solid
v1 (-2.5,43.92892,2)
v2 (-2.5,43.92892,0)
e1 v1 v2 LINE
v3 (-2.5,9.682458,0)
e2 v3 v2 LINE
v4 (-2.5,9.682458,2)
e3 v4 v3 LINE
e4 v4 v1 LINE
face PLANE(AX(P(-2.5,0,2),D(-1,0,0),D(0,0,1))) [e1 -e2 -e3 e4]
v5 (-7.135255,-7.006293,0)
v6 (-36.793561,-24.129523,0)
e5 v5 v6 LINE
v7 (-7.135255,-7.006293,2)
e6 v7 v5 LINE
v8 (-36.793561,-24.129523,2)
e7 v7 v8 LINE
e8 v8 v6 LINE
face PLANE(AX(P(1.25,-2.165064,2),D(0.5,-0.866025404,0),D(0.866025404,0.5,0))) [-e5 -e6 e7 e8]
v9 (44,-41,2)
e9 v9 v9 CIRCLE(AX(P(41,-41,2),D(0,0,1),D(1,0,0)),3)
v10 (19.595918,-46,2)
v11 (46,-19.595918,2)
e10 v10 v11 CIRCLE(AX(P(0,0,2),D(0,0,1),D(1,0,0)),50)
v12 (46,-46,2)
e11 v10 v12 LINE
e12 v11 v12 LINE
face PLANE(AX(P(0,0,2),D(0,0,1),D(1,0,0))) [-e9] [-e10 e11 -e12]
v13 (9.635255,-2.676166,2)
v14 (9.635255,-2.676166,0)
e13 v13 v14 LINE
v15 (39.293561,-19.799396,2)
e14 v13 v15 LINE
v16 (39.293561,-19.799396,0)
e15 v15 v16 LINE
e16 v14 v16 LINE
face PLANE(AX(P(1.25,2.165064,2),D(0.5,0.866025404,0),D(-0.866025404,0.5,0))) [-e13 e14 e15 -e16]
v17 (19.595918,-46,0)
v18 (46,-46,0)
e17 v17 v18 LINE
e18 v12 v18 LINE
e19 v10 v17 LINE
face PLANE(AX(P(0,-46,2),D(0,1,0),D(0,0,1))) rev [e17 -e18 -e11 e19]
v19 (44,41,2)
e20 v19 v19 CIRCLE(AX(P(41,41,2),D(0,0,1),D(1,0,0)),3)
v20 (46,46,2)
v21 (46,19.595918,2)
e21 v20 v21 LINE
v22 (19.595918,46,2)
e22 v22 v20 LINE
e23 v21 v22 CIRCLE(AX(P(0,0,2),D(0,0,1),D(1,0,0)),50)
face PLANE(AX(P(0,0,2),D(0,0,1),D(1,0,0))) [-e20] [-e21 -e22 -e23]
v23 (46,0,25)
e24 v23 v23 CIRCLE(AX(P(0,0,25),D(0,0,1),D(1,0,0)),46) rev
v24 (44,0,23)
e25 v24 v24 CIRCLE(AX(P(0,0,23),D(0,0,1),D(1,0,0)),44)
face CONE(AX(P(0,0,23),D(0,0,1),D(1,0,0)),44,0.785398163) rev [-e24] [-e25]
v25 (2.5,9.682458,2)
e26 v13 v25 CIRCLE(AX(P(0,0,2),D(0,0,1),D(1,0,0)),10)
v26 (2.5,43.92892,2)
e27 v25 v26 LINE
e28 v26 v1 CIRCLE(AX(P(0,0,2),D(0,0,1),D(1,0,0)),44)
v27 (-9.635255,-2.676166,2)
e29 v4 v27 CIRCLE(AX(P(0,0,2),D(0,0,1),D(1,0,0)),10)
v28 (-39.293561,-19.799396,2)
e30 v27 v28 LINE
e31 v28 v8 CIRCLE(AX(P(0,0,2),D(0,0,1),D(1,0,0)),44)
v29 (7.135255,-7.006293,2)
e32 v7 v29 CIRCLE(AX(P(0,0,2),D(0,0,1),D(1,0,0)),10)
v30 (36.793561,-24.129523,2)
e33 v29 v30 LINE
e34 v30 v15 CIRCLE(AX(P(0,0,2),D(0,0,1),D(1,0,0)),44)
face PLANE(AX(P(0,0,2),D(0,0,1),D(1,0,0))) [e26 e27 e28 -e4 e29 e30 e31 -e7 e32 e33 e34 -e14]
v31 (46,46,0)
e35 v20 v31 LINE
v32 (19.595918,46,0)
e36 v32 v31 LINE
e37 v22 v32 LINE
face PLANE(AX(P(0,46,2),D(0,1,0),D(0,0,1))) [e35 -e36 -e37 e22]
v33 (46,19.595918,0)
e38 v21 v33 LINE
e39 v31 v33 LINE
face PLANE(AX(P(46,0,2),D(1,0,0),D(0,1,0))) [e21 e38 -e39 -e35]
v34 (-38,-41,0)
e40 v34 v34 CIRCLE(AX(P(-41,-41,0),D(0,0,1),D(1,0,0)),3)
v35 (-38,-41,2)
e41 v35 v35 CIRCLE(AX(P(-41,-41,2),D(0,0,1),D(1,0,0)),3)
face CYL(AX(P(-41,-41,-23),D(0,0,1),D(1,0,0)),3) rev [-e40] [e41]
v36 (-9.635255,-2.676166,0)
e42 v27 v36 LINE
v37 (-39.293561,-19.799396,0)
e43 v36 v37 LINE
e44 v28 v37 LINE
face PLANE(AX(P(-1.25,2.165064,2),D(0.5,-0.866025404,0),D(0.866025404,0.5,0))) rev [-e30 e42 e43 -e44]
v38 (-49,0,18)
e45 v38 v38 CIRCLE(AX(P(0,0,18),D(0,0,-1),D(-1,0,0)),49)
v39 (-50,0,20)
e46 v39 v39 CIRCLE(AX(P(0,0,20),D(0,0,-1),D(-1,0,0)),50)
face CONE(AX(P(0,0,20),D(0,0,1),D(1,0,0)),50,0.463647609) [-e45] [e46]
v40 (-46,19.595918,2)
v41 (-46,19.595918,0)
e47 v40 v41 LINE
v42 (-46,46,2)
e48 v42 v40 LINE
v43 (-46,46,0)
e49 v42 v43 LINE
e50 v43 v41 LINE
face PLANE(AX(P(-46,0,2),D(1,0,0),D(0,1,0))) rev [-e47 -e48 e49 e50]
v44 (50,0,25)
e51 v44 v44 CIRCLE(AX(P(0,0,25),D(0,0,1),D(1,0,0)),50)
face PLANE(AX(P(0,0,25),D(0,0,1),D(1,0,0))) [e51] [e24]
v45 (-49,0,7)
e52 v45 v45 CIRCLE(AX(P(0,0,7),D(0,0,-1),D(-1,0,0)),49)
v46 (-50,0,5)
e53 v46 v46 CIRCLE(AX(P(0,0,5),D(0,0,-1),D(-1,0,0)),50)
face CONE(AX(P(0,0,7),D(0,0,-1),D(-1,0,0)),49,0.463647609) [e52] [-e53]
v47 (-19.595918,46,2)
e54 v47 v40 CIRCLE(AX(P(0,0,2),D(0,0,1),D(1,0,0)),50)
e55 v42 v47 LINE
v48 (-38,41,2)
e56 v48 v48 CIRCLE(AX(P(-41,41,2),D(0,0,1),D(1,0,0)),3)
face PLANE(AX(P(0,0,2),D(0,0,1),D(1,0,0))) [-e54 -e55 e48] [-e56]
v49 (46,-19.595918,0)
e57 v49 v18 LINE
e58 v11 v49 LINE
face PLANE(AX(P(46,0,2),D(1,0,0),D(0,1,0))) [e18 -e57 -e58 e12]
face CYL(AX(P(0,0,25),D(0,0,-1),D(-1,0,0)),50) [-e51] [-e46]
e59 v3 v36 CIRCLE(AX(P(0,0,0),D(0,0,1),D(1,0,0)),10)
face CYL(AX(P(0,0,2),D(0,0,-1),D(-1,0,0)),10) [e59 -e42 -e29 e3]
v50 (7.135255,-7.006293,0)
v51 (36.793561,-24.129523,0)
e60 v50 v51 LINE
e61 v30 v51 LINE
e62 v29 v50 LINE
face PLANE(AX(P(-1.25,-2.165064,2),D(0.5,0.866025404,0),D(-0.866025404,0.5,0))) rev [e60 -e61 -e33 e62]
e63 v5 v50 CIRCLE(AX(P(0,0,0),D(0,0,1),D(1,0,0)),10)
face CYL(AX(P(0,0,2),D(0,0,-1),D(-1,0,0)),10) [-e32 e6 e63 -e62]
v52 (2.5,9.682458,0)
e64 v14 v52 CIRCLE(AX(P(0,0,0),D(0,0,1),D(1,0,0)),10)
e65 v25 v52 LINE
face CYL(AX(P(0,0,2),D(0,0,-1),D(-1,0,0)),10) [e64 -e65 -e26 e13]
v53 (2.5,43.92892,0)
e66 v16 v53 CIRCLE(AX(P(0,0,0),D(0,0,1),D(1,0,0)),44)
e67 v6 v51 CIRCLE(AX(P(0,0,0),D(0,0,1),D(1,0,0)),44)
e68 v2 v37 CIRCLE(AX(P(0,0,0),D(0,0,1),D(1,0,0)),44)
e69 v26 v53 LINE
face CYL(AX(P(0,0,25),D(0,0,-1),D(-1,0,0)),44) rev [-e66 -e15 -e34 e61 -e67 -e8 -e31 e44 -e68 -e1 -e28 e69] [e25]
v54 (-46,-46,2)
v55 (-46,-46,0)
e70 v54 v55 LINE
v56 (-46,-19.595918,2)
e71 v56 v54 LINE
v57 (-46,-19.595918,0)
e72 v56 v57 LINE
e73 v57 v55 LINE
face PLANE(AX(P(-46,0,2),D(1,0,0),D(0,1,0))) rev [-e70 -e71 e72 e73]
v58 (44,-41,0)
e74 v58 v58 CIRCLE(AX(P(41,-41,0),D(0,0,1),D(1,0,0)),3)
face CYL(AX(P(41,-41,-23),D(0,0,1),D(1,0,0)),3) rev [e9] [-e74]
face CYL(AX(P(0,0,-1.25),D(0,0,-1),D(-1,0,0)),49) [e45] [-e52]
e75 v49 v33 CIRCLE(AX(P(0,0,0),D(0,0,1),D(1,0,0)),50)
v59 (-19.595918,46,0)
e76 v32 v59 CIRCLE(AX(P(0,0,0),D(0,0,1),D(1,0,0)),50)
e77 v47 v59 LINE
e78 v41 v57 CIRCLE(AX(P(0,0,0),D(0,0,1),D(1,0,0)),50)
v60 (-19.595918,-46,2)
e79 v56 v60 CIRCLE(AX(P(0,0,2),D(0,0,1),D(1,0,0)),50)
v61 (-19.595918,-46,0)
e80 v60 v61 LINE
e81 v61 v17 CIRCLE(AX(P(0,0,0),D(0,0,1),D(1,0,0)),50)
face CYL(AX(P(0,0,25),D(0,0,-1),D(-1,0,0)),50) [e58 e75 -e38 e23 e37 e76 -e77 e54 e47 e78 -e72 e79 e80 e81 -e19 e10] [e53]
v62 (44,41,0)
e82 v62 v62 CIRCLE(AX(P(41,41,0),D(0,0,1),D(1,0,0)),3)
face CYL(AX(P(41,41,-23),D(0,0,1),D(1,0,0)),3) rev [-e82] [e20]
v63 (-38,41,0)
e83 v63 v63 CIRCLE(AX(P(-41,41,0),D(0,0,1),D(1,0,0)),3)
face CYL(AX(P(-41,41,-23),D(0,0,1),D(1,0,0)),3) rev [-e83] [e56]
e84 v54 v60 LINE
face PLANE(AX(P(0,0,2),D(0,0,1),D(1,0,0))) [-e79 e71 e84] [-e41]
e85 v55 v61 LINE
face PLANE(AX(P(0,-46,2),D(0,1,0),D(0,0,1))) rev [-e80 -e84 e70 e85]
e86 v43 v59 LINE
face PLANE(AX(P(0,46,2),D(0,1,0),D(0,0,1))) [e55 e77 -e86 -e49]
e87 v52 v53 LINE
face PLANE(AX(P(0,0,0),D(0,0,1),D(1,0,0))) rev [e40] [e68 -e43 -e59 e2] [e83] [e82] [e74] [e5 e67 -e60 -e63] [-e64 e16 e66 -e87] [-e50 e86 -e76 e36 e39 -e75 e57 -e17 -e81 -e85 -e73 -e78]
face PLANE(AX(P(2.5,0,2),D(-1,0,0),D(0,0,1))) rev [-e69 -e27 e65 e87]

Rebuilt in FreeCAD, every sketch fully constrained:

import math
import FreeCAD as App
import Part
import Sketcher

V = App.Vector
Q = App.Units.Quantity


def edges_at(feature, points):
    """Names of the edges that pass closest to the given points."""
    edges = feature.Shape.Edges
    near = lambda p: min(range(len(edges)), key=lambda i: edges[i].distToShape(Part.Vertex(*p))[0])
    return sorted({f"Edge{near(p) + 1}" for p in points})

doc = App.newDocument("Part")
body = doc.addObject("PartDesign::Body", "Body")
body.AllowCompound = True

# Sketch on XY plane
sketch1 = body.newObject("Sketcher::SketchObject", "Sketch")
sketch1.AttachmentSupport = (doc.getObject("XY_Plane"), [""])
sketch1.MapMode = "FlatFace"
sketch1.addGeometry(Part.LineSegment(V(-46, 46, 0), V(-46, 19.595918, 0)), False)
sketch1.addGeometry(Part.ArcOfCircle(Part.Circle(V(0, 0, 0), V(0, 0, 1), 50), math.radians(113.073918), math.radians(156.926082)), False)
sketch1.addGeometry(Part.LineSegment(V(-19.595918, 46, 0), V(-46, 46, 0)), False)
sketch1.addGeometry(Part.ArcOfCircle(Part.Circle(V(0, 0, 0), V(0, 0, 1), 50), math.radians(-156.926082), math.radians(-113.073918)), False)
sketch1.addGeometry(Part.LineSegment(V(-46, -19.595918, 0), V(-46, -46, 0)), False)
sketch1.addGeometry(Part.LineSegment(V(-46, -46, 0), V(-19.595918, -46, 0)), False)
sketch1.addGeometry(Part.ArcOfCircle(Part.Circle(V(0, 0, 0), V(0, 0, 1), 50), math.radians(-66.926082), math.radians(-23.073918)), False)
sketch1.addGeometry(Part.LineSegment(V(19.595918, -46, 0), V(46, -46, 0)), False)
sketch1.addGeometry(Part.LineSegment(V(46, -46, 0), V(46, -19.595918, 0)), False)
sketch1.addGeometry(Part.LineSegment(V(46, 46, 0), V(19.595918, 46, 0)), False)
sketch1.addGeometry(Part.ArcOfCircle(Part.Circle(V(0, 0, 0), V(0, 0, 1), 50), math.radians(23.073918), math.radians(66.926082)), False)
sketch1.addGeometry(Part.LineSegment(V(46, 19.595918, 0), V(46, 46, 0)), False)
sketch1.addGeometry(Part.LineSegment(V(2.5, 9.682458, 0), V(2.5, 43.92892, 0)), False)
sketch1.addGeometry(Part.ArcOfCircle(Part.Circle(V(0, 0, 0), V(0, 0, 1), 44), math.radians(86.742804), math.radians(93.257196)), False)
sketch1.addGeometry(Part.LineSegment(V(-2.5, 43.92892, 0), V(-2.5, 9.682458, 0)), False)
sketch1.addGeometry(Part.ArcOfCircle(Part.Circle(V(0, 0, 0), V(0, 0, 1), 10), math.radians(104.477512), math.radians(195.522488)), False)
sketch1.addGeometry(Part.LineSegment(V(-9.635255, -2.676166, 0), V(-39.293561, -19.799396, 0)), False)
sketch1.addGeometry(Part.ArcOfCircle(Part.Circle(V(0, 0, 0), V(0, 0, 1), 44), math.radians(-153.257196), math.radians(-146.742804)), False)
sketch1.addGeometry(Part.LineSegment(V(-36.793561, -24.129523, 0), V(-7.135255, -7.006293, 0)), False)
sketch1.addGeometry(Part.ArcOfCircle(Part.Circle(V(0, 0, 0), V(0, 0, 1), 10), math.radians(-135.522488), math.radians(-44.477512)), False)
sketch1.addGeometry(Part.LineSegment(V(7.135255, -7.006293, 0), V(36.793561, -24.129523, 0)), False)
sketch1.addGeometry(Part.ArcOfCircle(Part.Circle(V(0, 0, 0), V(0, 0, 1), 44), math.radians(-33.257196), math.radians(-26.742804)), False)
sketch1.addGeometry(Part.LineSegment(V(39.293561, -19.799396, 0), V(9.635255, -2.676166, 0)), False)
sketch1.addGeometry(Part.ArcOfCircle(Part.Circle(V(0, 0, 0), V(0, 0, 1), 10), math.radians(-15.522488), math.radians(75.522488)), False)
sketch1.addConstraint(Sketcher.Constraint("Coincident", 0, 2, 1, 2))
sketch1.addConstraint(Sketcher.Constraint("Coincident", 1, 1, 2, 1))
sketch1.addConstraint(Sketcher.Constraint("Coincident", 2, 2, 0, 1))
sketch1.addConstraint(Sketcher.Constraint("Coincident", 3, 1, 4, 1))
sketch1.addConstraint(Sketcher.Constraint("Coincident", 4, 2, 5, 1))
sketch1.addConstraint(Sketcher.Constraint("Coincident", 5, 2, 3, 2))
sketch1.addConstraint(Sketcher.Constraint("Coincident", 6, 1, 7, 1))
sketch1.addConstraint(Sketcher.Constraint("Coincident", 7, 2, 8, 1))
sketch1.addConstraint(Sketcher.Constraint("Coincident", 8, 2, 6, 2))
sketch1.addConstraint(Sketcher.Constraint("Coincident", 9, 2, 10, 2))
sketch1.addConstraint(Sketcher.Constraint("Coincident", 10, 1, 11, 1))
sketch1.addConstraint(Sketcher.Constraint("Coincident", 11, 2, 9, 1))
sketch1.addConstraint(Sketcher.Constraint("Coincident", 12, 2, 13, 1))
sketch1.addConstraint(Sketcher.Constraint("Coincident", 13, 2, 14, 1))
sketch1.addConstraint(Sketcher.Constraint("Coincident", 14, 2, 15, 1))
sketch1.addConstraint(Sketcher.Constraint("Coincident", 15, 2, 16, 1))
sketch1.addConstraint(Sketcher.Constraint("Coincident", 16, 2, 17, 1))
sketch1.addConstraint(Sketcher.Constraint("Coincident", 17, 2, 18, 1))
sketch1.addConstraint(Sketcher.Constraint("Coincident", 18, 2, 19, 1))
sketch1.addConstraint(Sketcher.Constraint("Coincident", 19, 2, 20, 1))
sketch1.addConstraint(Sketcher.Constraint("Coincident", 20, 2, 21, 1))
sketch1.addConstraint(Sketcher.Constraint("Coincident", 21, 2, 22, 1))
sketch1.addConstraint(Sketcher.Constraint("Coincident", 22, 2, 23, 1))
sketch1.addConstraint(Sketcher.Constraint("Coincident", 23, 2, 12, 1))
sketch1.addConstraint(Sketcher.Constraint("Vertical", 0))
sketch1.addConstraint(Sketcher.Constraint("Horizontal", 2))
sketch1.addConstraint(Sketcher.Constraint("Vertical", 4))
sketch1.addConstraint(Sketcher.Constraint("Horizontal", 5))
sketch1.addConstraint(Sketcher.Constraint("Horizontal", 7))
sketch1.addConstraint(Sketcher.Constraint("Vertical", 8))
sketch1.addConstraint(Sketcher.Constraint("Horizontal", 9))
sketch1.addConstraint(Sketcher.Constraint("Vertical", 11))
sketch1.addConstraint(Sketcher.Constraint("Vertical", 12))
sketch1.addConstraint(Sketcher.Constraint("Vertical", 14))
sketch1.addConstraint(Sketcher.Constraint("Coincident", 1, 3, -1, 1))
sketch1.addConstraint(Sketcher.Constraint("Coincident", 3, 3, -1, 1))
sketch1.addConstraint(Sketcher.Constraint("Coincident", 6, 3, -1, 1))
sketch1.addConstraint(Sketcher.Constraint("Coincident", 10, 3, -1, 1))
sketch1.addConstraint(Sketcher.Constraint("Coincident", 13, 3, -1, 1))
sketch1.addConstraint(Sketcher.Constraint("Coincident", 15, 3, -1, 1))
sketch1.addConstraint(Sketcher.Constraint("Coincident", 17, 3, -1, 1))
sketch1.addConstraint(Sketcher.Constraint("Coincident", 19, 3, -1, 1))
sketch1.addConstraint(Sketcher.Constraint("Coincident", 21, 3, -1, 1))
sketch1.addConstraint(Sketcher.Constraint("Coincident", 23, 3, -1, 1))
sketch1.addConstraint(Sketcher.Constraint("Equal", 1, 3))
sketch1.addConstraint(Sketcher.Constraint("Equal", 3, 6))
sketch1.addConstraint(Sketcher.Constraint("Equal", 6, 10))
sketch1.addConstraint(Sketcher.Constraint("Equal", 13, 17))
sketch1.addConstraint(Sketcher.Constraint("Equal", 15, 19))
sketch1.addConstraint(Sketcher.Constraint("Equal", 17, 21))
sketch1.addConstraint(Sketcher.Constraint("Equal", 19, 23))
sketch1.addConstraint(Sketcher.Constraint("Symmetric", 2, 2, 7, 2, -1, 1))
sketch1.addConstraint(Sketcher.Constraint("Symmetric", 4, 2, 11, 2, -1, 1))
sketch1.addConstraint(Sketcher.Constraint("Symmetric", 4, 2, 7, 2, -2))
sketch1.addConstraint(Sketcher.Constraint("Parallel", 16, 18))
sketch1.addConstraint(Sketcher.Constraint("Parallel", 20, 22))
sketch1.addConstraint(Sketcher.Constraint("Horizontal", 12, 2, 13, 2))
sketch1.addConstraint(Sketcher.Constraint("Horizontal", 18, 2, 19, 2))
sketch1.addConstraint(Sketcher.Constraint("Horizontal", 17, 2, 20, 2))
sketch1.addConstraint(Sketcher.Constraint("Horizontal", 16, 2, 21, 2))
sketch1.addConstraint(Sketcher.Constraint("Equal", 9, 0))
sketch1.addConstraint(Sketcher.Constraint("Equal", 16, 18))
sketch1.addConstraint(Sketcher.Constraint("Radius", 1, Q("50 mm")))
sketch1.addConstraint(Sketcher.Constraint("Radius", 13, Q("44 mm")))
sketch1.addConstraint(Sketcher.Constraint("Radius", 15, Q("10 mm")))
sketch1.addConstraint(Sketcher.Constraint("Angle", 16, Q("-150 deg")))
sketch1.addConstraint(Sketcher.Constraint("DistanceX", 0, 2, -1, 1, Q("46 mm")))
sketch1.addConstraint(Sketcher.Constraint("DistanceX", 13, 2, 12, 2, Q("5 mm")))
sketch1.addConstraint(Sketcher.Constraint("DistanceX", 16, 2, 17, 2, Q("2.5 mm")))
pad1 = body.newObject("PartDesign::Pad", "Pad")
pad1.Profile = sketch1
pad1.Length = 2

# Sketch on XY plane
sketch2 = body.newObject("Sketcher::SketchObject", "Sketch001")
sketch2.AttachmentSupport = (doc.getObject("XY_Plane"), [""])
sketch2.MapMode = "FlatFace"
sketch2.addGeometry(Part.Circle(V(0, 0, 0), V(0, 0, 1), 50), False)
sketch2.addGeometry(Part.Circle(V(0, 0, 0), V(0, 0, 1), 44), False)
sketch2.addConstraint(Sketcher.Constraint("Coincident", 0, 3, -1, 1))
sketch2.addConstraint(Sketcher.Constraint("Coincident", 1, 3, -1, 1))
sketch2.addConstraint(Sketcher.Constraint("Diameter", 0, Q("100 mm")))
sketch2.addConstraint(Sketcher.Constraint("Diameter", 1, Q("88 mm")))
pad2 = body.newObject("PartDesign::Pad", "Pad001")
pad2.Profile = sketch2
pad2.Length = 25

# Sketch on YZ plane
sketch3 = body.newObject("Sketcher::SketchObject", "Sketch002")
sketch3.AttachmentSupport = (doc.getObject("YZ_Plane"), [""])
sketch3.MapMode = "FlatFace"
sketch3.addGeometry(Part.LineSegment(V(50, 5, 0), V(50, 20, 0)), False)
sketch3.addGeometry(Part.LineSegment(V(50, 20, 0), V(49, 18, 0)), False)
sketch3.addGeometry(Part.LineSegment(V(49, 18, 0), V(49, 7, 0)), False)
sketch3.addGeometry(Part.LineSegment(V(49, 7, 0), V(50, 5, 0)), False)
sketch3.addConstraint(Sketcher.Constraint("Coincident", 0, 2, 1, 1))
sketch3.addConstraint(Sketcher.Constraint("Coincident", 1, 2, 2, 1))
sketch3.addConstraint(Sketcher.Constraint("Coincident", 2, 2, 3, 1))
sketch3.addConstraint(Sketcher.Constraint("Coincident", 3, 2, 0, 1))
sketch3.addConstraint(Sketcher.Constraint("Vertical", 0))
sketch3.addConstraint(Sketcher.Constraint("Vertical", 2))
sketch3.addConstraint(Sketcher.Constraint("Equal", 1, 3))
sketch3.addConstraint(Sketcher.Constraint("DistanceY", 0, 1, 0, 2, Q("15 mm")))
sketch3.addConstraint(Sketcher.Constraint("DistanceY", 2, 2, 2, 1, Q("11 mm")))
sketch3.addConstraint(Sketcher.Constraint("DistanceX", -1, 1, 0, 2, Q("50 mm")))
sketch3.addConstraint(Sketcher.Constraint("DistanceY", -1, 1, 0, 2, Q("20 mm")))
sketch3.addConstraint(Sketcher.Constraint("DistanceX", -1, 1, 1, 2, Q("49 mm")))
groove = body.newObject("PartDesign::Groove", "Groove")
groove.Profile = sketch3
groove.ReferenceAxis = (sketch3, ["V_Axis"])
groove.Angle = 360
doc.recompute()

chamfer = body.newObject("PartDesign::Chamfer", "Chamfer")
chamfer.Base = (groove, edges_at(groove, [(39.294, 19.799, 25)]))
chamfer.Size = 2

# Sketch on XY plane
sketch4 = body.newObject("Sketcher::SketchObject", "Sketch003")
sketch4.AttachmentSupport = (doc.getObject("XY_Plane"), [""])
sketch4.MapMode = "FlatFace"
sketch4.AttachmentOffset = App.Placement(V(0, 0, 2), App.Rotation())
sketch4.addGeometry(Part.Circle(V(-41, 41, 0), V(0, 0, 1), 3), False)
sketch4.addGeometry(Part.Circle(V(-41, -41, 0), V(0, 0, 1), 3), False)
sketch4.addGeometry(Part.Circle(V(41, 41, 0), V(0, 0, 1), 3), False)
sketch4.addGeometry(Part.Circle(V(41, -41, 0), V(0, 0, 1), 3), False)
sketch4.addConstraint(Sketcher.Constraint("Equal", 0, 1))
sketch4.addConstraint(Sketcher.Constraint("Equal", 1, 2))
sketch4.addConstraint(Sketcher.Constraint("Equal", 2, 3))
sketch4.addConstraint(Sketcher.Constraint("Symmetric", 1, 3, 2, 3, -1, 1))
sketch4.addConstraint(Sketcher.Constraint("Symmetric", 0, 3, 3, 3, -1, 1))
sketch4.addConstraint(Sketcher.Constraint("Symmetric", 0, 3, 2, 3, -2))
sketch4.addConstraint(Sketcher.Constraint("Diameter", 0, Q("6 mm")))
sketch4.addConstraint(Sketcher.Constraint("DistanceX", 0, 3, -1, 1, Q("41 mm")))
sketch4.addConstraint(Sketcher.Constraint("DistanceY", -1, 1, 0, 3, Q("41 mm")))
pocket1 = body.newObject("PartDesign::Pocket", "Pocket")
pocket1.Profile = sketch4
pocket1.Length = 25

doc.recompute()
